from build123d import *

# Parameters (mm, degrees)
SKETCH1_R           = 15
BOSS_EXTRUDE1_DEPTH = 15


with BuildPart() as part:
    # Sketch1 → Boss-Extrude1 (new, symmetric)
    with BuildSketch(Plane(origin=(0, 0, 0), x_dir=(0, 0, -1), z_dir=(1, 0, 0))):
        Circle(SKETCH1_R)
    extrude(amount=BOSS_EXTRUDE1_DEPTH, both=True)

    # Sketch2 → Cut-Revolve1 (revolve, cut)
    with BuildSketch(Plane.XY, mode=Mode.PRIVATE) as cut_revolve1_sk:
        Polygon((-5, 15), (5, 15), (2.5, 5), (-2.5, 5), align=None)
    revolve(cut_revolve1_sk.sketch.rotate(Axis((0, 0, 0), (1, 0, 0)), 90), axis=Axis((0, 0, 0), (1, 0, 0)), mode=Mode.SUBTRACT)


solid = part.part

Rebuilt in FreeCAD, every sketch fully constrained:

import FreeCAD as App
import Part
import Sketcher
from FreeCAD import Vector


def add_polygon(sketch, points):
    """Adds a closed chain of lines whose ends are joined by coincident constraints."""
    first, n = sketch.GeometryCount, len(points)
    for a, b in zip(points, points[1:] + points[:1]):
        sketch.addGeometry(Part.LineSegment(App.Vector(*a, 0), App.Vector(*b, 0)), False)
    for i in range(n):
        sketch.addConstraint(Sketcher.Constraint("Coincident", first + i, 2, first + (i + 1) % n, 1))

doc = App.newDocument("Part")
body = doc.addObject("PartDesign::Body", "Body")

sketch1 = body.newObject("Sketcher::SketchObject", "Sketch")
sketch1.AttachmentSupport = (doc.getObject("YZ_Plane"), [""])
sketch1.MapMode = "FlatFace"
sketch1.addGeometry(Part.Circle(Vector(0, 0, 0), Vector(0, 0, 1), 15), False)
sketch1.addConstraint([
    Sketcher.Constraint("Coincident", 0, 3, -1, 1),
    Sketcher.Constraint("Diameter", 0, 30.0),
])
pad1 = body.newObject("PartDesign::Pad", "Pad")
pad1.Profile = sketch1
pad1.Length = 30
pad1.Midplane = True

sketch2 = body.newObject("Sketcher::SketchObject", "Sketch001")
sketch2.AttachmentSupport = (doc.getObject("XY_Plane"), [""])
sketch2.MapMode = "FlatFace"
add_polygon(sketch2, [(5, 15), (-5, 15), (-2.5, 5), (2.5, 5)])
sketch2.addConstraint([
    Sketcher.Constraint("Horizontal", 0),
    Sketcher.Constraint("Horizontal", 2),
    Sketcher.Constraint("Equal", 1, 3),
    Sketcher.Constraint("DistanceX", 0, 2, 0, 1, 10.0),
    Sketcher.Constraint("DistanceX", 2, 1, 2, 2, 5.0),
    Sketcher.Constraint("DistanceX", 0, 2, -1, 1, 5.0),
    Sketcher.Constraint("DistanceY", -1, 1, 0, 2, 15.0),
    Sketcher.Constraint("DistanceY", -1, 1, 1, 2, 5.0),
])
groove = body.newObject("PartDesign::Groove", "Groove")
groove.Profile = sketch2
groove.ReferenceAxis = (sketch2, ["H_Axis"])
groove.Angle = 360

doc.recompute()
